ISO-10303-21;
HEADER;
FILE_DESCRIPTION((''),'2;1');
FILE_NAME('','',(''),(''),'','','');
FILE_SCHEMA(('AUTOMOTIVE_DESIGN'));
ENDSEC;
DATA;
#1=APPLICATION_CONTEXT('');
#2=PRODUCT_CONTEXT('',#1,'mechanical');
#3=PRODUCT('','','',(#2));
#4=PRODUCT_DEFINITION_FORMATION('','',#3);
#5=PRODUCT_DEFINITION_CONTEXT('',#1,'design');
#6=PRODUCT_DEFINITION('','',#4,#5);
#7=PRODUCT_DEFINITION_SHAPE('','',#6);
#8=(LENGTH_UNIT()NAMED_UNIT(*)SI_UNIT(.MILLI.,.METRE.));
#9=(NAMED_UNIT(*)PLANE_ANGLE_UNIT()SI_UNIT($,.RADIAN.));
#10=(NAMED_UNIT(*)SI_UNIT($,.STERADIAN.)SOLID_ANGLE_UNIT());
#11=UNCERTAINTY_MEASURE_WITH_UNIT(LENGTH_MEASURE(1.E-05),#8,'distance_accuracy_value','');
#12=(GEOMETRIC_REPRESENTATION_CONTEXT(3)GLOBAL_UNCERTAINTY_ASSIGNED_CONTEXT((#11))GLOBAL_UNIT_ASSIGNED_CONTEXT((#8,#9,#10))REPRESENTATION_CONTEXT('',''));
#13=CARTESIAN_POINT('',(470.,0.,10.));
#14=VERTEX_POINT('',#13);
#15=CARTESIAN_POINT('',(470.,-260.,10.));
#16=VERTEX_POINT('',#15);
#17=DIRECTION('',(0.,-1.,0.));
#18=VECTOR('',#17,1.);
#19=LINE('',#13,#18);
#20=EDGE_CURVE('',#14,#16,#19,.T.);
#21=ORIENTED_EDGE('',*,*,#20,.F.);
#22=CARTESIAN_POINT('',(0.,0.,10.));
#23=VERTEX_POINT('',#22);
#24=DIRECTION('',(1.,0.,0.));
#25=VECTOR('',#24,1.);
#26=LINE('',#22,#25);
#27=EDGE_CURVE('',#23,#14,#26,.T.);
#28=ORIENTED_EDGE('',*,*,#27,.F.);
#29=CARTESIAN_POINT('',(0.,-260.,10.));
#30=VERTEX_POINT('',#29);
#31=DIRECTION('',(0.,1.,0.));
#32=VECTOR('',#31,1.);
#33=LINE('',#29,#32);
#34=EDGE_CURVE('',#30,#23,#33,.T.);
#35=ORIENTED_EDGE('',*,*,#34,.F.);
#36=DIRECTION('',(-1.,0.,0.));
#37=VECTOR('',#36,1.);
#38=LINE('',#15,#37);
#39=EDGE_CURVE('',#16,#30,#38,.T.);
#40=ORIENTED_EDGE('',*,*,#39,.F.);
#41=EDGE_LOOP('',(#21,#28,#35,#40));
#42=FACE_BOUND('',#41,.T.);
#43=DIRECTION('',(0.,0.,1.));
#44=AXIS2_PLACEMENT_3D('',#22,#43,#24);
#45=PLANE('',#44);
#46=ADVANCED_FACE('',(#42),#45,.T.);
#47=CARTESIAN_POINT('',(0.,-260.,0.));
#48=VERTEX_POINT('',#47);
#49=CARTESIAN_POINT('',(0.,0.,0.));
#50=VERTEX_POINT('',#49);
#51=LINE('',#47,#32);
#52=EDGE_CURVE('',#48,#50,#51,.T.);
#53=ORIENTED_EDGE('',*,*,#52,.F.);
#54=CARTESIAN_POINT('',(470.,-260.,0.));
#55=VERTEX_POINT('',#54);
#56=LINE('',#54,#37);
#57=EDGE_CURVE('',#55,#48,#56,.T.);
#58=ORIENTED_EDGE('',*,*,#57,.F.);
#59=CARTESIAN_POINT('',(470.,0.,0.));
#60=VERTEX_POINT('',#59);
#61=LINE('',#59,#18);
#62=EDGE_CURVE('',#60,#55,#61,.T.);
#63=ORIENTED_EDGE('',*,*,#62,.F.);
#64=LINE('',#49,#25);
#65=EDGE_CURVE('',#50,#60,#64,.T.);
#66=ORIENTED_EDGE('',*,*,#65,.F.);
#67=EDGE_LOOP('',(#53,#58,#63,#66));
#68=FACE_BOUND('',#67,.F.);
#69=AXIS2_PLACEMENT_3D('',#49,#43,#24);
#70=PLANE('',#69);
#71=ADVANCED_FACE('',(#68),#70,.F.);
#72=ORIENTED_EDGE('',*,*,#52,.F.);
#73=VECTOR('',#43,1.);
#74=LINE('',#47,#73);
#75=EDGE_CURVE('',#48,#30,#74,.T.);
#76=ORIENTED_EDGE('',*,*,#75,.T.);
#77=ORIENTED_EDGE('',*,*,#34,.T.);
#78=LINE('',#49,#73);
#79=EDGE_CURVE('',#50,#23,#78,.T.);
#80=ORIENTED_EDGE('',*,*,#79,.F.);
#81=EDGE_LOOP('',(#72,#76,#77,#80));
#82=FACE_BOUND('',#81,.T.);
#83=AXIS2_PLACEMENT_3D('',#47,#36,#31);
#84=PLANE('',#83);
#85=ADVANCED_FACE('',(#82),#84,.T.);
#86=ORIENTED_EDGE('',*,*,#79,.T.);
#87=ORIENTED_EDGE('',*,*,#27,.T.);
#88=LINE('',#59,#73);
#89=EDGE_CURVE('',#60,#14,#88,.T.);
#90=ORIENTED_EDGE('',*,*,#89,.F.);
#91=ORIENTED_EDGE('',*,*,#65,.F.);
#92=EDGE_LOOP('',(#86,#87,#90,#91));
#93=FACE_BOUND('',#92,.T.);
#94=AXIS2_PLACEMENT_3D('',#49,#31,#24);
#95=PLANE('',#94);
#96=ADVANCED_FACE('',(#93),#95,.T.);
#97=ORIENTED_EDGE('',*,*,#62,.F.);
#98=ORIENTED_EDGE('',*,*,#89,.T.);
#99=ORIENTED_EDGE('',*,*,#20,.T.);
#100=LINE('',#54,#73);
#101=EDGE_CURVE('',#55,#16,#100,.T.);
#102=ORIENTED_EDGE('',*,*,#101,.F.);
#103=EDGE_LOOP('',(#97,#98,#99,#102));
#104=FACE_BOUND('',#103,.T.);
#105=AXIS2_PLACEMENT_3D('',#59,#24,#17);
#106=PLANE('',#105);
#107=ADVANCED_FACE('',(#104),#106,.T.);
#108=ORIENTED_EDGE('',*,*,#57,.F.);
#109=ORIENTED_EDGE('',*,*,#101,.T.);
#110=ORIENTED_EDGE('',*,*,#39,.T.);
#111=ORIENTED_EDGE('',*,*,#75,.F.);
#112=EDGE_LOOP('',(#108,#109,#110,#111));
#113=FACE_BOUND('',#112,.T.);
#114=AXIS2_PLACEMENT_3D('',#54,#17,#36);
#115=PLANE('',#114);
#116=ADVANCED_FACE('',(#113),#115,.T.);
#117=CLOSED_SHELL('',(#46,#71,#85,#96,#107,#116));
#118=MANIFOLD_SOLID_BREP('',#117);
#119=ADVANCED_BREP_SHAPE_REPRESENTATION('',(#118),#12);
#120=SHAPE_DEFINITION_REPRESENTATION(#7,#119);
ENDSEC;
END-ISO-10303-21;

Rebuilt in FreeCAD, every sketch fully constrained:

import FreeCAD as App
import Part
import Sketcher
Q = App.Units.Quantity

doc = App.newDocument("Part")
params = doc.addObject("Spreadsheet::Sheet", "Params")
for row, (alias, value) in enumerate([
    ("sketch1_width", "470 mm"),
    ("sketch1_height", "260 mm"),
    ("pad1_length", "10 mm"),
], start=1):
    params.set(f"A{row}", alias)
    params.set(f"B{row}", "=" + value)
    params.setAlias(f"B{row}", alias)

body = doc.addObject("PartDesign::Body", "Body")

# Sketch on XY plane
sketch1 = body.newObject("Sketcher::SketchObject", "Sketch")
sketch1.AttachmentSupport = (doc.getObject("XY_Plane"), [""])
sketch1.MapMode = "FlatFace"
sketch1.addGeometry([
    Part.LineSegment(App.Vector(470, 0, 0), App.Vector(0, 0, 0)),
    Part.LineSegment(App.Vector(0, 0, 0), App.Vector(0, -260, 0)),
    Part.LineSegment(App.Vector(0, -260, 0), App.Vector(470, -260, 0)),
    Part.LineSegment(App.Vector(470, -260, 0), App.Vector(470, 0, 0)),
], False)
sketch1.addConstraint([
    Sketcher.Constraint("Coincident", 0, 2, 1, 1),
    Sketcher.Constraint("Coincident", 1, 2, 2, 1),
    Sketcher.Constraint("Coincident", 2, 2, 3, 1),
    Sketcher.Constraint("Coincident", 3, 2, 0, 1),
    Sketcher.Constraint("Horizontal", 0),
    Sketcher.Constraint("Vertical", 1),
    Sketcher.Constraint("Horizontal", 2),
    Sketcher.Constraint("Vertical", 3),
    Sketcher.Constraint("Coincident", 0, 2, -1, 1),
    Sketcher.Constraint("DistanceX", 0, 2, 0, 1, Q("470 mm")),
    Sketcher.Constraint("DistanceY", 1, 2, 1, 1, Q("260 mm")),
])
sketch1.setExpression("Constraints[9]", "Params.sketch1_width")
sketch1.setExpression("Constraints[10]", "Params.sketch1_height")
pad1 = body.newObject("PartDesign::Pad", "Pad")
pad1.Profile = sketch1
pad1.setExpression("Length", "Params.pad1_length")

doc.recompute()
